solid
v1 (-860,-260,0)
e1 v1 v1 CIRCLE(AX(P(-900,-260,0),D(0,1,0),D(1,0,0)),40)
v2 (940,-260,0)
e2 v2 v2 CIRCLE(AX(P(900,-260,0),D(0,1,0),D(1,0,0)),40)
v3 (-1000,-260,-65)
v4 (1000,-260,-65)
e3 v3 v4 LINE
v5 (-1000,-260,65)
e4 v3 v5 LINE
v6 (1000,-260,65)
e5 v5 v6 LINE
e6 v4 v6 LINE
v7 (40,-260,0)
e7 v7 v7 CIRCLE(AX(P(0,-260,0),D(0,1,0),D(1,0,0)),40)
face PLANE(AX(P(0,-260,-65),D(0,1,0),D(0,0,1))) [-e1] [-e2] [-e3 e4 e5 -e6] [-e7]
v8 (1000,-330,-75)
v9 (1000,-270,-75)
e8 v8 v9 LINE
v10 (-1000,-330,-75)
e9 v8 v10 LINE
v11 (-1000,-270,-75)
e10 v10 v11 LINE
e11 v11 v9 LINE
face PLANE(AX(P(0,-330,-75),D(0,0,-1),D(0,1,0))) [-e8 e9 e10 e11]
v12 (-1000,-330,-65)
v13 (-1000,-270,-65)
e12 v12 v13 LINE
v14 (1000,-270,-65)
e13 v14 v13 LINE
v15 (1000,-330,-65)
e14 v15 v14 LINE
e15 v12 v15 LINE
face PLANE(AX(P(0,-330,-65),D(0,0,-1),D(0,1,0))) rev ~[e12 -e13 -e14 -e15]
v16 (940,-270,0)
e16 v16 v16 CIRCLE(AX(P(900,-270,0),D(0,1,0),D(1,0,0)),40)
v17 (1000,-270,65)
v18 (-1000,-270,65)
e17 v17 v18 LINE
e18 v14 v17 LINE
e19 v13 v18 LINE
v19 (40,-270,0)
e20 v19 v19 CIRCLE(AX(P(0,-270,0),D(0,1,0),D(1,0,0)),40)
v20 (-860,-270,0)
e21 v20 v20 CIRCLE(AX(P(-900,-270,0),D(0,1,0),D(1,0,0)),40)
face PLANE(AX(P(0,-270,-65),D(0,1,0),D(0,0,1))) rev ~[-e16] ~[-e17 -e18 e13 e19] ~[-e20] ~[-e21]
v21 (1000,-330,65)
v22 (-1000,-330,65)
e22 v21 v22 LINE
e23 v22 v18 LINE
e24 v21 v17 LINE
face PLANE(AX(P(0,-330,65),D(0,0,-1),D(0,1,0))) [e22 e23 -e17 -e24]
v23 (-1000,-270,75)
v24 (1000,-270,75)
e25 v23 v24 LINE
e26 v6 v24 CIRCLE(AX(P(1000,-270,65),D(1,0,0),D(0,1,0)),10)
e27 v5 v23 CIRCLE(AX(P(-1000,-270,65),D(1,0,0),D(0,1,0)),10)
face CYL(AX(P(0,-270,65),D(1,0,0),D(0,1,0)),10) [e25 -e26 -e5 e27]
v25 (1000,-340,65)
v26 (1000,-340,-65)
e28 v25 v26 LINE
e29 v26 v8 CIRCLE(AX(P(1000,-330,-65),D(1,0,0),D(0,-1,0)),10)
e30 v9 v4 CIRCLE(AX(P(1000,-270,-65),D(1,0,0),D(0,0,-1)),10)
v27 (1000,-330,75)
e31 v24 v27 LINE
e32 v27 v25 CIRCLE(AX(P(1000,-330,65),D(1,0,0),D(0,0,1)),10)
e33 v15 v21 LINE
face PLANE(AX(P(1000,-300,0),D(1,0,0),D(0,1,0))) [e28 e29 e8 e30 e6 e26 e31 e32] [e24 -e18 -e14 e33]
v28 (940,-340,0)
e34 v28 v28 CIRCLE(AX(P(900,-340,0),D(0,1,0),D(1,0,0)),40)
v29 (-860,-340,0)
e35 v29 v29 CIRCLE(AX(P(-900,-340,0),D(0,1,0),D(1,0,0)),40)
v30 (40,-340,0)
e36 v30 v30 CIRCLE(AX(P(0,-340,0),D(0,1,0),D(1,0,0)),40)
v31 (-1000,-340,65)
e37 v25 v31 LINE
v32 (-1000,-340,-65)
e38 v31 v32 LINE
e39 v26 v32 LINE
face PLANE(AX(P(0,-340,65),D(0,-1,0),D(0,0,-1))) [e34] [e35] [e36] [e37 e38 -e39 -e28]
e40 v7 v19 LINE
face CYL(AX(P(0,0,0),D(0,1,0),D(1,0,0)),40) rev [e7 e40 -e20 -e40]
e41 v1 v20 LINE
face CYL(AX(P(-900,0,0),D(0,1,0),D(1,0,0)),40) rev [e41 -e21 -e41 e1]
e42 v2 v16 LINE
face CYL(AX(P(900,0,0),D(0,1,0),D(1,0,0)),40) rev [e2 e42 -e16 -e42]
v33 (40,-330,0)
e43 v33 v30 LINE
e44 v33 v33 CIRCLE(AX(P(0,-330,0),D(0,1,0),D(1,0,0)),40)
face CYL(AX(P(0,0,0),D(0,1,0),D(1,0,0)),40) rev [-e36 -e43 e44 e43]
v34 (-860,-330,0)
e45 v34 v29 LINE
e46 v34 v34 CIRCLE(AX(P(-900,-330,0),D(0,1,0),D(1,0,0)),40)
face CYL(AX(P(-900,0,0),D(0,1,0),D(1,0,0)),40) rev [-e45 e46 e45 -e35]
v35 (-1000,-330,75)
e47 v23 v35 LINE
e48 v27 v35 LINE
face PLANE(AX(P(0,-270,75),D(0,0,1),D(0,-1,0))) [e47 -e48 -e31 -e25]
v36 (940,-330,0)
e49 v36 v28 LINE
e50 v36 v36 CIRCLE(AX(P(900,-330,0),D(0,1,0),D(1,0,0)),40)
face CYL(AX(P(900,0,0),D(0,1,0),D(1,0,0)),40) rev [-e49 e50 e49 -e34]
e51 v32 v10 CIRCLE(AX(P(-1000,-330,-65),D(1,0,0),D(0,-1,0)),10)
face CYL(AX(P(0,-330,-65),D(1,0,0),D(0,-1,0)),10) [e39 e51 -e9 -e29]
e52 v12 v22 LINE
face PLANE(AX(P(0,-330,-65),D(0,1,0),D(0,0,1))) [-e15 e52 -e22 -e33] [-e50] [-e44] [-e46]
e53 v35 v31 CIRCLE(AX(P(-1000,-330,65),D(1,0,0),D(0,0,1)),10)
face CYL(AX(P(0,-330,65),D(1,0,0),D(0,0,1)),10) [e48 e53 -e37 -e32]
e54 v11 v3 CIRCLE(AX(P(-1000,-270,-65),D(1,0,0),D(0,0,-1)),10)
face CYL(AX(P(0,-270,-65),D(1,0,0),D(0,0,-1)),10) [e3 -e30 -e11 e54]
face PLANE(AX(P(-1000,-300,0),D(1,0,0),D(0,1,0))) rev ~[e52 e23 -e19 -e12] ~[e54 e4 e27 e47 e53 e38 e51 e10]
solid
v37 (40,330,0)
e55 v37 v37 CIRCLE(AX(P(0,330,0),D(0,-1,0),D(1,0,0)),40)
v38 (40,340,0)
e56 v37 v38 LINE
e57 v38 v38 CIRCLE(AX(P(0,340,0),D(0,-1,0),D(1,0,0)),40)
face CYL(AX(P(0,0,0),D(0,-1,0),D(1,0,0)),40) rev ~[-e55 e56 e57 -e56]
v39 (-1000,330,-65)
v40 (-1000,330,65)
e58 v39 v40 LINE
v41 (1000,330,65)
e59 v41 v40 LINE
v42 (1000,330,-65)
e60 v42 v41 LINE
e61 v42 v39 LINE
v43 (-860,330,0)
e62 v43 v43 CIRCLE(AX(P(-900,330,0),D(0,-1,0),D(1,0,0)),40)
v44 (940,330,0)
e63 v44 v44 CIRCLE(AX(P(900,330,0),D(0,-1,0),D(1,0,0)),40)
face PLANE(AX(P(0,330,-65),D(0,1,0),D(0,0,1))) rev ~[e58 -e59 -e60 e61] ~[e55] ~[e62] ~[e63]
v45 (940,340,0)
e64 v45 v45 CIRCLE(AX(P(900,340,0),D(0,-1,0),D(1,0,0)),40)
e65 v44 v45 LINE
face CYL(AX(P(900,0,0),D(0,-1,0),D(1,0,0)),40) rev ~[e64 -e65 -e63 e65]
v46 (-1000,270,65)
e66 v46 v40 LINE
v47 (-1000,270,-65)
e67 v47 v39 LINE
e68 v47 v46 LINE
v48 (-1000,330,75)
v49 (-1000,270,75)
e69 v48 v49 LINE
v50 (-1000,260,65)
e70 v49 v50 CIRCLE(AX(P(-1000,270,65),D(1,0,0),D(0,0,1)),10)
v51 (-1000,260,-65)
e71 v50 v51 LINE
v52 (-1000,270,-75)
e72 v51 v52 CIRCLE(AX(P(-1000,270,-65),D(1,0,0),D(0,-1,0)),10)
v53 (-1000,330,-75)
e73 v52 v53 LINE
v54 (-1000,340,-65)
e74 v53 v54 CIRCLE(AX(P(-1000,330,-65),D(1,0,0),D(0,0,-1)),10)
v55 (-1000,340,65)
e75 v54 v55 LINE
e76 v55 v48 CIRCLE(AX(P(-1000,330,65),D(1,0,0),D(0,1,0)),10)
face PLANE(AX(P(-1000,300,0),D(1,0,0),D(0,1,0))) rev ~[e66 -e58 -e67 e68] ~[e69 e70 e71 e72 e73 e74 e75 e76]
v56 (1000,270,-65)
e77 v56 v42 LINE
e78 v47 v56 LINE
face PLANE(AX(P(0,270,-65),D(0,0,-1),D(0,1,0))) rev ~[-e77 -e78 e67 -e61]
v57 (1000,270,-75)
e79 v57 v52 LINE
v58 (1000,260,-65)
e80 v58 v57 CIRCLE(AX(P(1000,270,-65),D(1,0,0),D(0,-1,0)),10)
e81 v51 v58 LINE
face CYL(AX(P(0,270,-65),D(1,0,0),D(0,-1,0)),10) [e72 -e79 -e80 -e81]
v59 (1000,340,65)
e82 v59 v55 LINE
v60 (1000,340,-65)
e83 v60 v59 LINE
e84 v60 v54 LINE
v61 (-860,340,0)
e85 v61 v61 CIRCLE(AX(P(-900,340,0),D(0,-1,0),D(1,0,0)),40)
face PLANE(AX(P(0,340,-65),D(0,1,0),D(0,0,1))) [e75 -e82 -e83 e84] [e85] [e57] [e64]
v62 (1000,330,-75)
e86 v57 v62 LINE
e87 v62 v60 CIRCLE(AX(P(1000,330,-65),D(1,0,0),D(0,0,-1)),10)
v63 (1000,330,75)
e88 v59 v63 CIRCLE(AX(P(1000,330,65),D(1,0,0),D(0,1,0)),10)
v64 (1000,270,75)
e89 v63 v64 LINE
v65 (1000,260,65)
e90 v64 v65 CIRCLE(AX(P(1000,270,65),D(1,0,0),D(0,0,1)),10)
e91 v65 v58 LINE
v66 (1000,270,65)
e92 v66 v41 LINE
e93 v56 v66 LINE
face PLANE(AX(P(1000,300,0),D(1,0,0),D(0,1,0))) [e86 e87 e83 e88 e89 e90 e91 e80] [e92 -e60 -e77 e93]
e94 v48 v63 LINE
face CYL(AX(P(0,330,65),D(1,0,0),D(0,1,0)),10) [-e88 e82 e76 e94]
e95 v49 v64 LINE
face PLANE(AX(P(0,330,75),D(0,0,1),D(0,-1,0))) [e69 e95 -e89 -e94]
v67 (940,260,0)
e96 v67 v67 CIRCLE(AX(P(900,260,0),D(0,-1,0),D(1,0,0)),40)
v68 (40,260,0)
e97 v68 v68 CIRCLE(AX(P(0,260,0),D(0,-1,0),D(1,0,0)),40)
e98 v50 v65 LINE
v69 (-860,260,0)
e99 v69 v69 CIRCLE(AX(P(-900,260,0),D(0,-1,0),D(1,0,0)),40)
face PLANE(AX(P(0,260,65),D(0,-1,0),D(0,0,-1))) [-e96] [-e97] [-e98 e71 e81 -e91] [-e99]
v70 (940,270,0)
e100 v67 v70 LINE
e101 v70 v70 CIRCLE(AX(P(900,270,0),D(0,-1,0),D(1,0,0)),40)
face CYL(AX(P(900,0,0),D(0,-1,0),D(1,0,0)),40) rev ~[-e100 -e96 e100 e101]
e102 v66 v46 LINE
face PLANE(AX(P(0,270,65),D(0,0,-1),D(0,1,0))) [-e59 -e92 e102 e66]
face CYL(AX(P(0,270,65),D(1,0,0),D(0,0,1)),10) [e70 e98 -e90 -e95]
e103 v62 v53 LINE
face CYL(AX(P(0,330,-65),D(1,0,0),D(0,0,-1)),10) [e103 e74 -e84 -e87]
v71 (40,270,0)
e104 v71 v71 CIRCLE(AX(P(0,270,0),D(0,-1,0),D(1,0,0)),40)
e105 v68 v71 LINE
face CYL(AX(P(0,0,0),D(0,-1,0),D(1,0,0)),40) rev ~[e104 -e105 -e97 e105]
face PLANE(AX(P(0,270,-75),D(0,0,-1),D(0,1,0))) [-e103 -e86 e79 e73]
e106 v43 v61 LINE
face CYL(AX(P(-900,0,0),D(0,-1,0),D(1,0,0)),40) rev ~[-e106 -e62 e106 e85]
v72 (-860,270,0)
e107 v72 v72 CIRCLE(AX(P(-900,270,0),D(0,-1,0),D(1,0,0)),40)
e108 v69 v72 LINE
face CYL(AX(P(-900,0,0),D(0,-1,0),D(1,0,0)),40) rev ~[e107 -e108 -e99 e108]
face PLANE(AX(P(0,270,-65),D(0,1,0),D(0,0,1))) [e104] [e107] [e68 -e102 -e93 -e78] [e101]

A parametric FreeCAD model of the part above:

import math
import FreeCAD as App
import Part
import Sketcher

V = App.Vector


def add_polygon(sketch, points):
    """Adds a closed chain of lines whose ends are joined by coincident constraints."""
    first, n = sketch.GeometryCount, len(points)
    for a, b in zip(points, points[1:] + points[:1]):
        sketch.addGeometry(Part.LineSegment(App.Vector(*a, 0), App.Vector(*b, 0)), False)
    for i in range(n):
        sketch.addConstraint(Sketcher.Constraint("Coincident", first + i, 2, first + (i + 1) % n, 1))

doc = App.newDocument("Part")
body = doc.addObject("PartDesign::Body", "Body")

sketch1 = body.newObject("Sketcher::SketchObject", "Sketch")
sketch1.AttachmentSupport = (doc.getObject("YZ_Plane"), [""])
sketch1.MapMode = "FlatFace"
sketch1.addGeometry(Part.LineSegment(V(-330, -75, 0), V(-270, -75, 0)), False)
sketch1.addGeometry(Part.ArcOfCircle(Part.Circle(V(-270, -65, 0), V(0, 0, 1), 10), math.radians(-90), math.radians(0)), False)
sketch1.addGeometry(Part.LineSegment(V(-260, -65, 0), V(-260, 65, 0)), False)
sketch1.addGeometry(Part.ArcOfCircle(Part.Circle(V(-270, 65, 0), V(0, 0, 1), 10), math.radians(0), math.radians(90)), False)
sketch1.addGeometry(Part.LineSegment(V(-270, 75, 0), V(-330, 75, 0)), False)
sketch1.addGeometry(Part.ArcOfCircle(Part.Circle(V(-330, 65, 0), V(0, 0, 1), 10), math.radians(90), math.radians(180)), False)
sketch1.addGeometry(Part.LineSegment(V(-340, 65, 0), V(-340, -65, 0)), False)
sketch1.addGeometry(Part.ArcOfCircle(Part.Circle(V(-330, -65, 0), V(0, 0, 1), 10), math.radians(180), math.radians(270)), False)
add_polygon(sketch1, [(-270, -65), (-330, -65), (-330, 65), (-270, 65)])
sketch1.addConstraint(Sketcher.Constraint("Tangent", 0, 2, 1, 1))
sketch1.addConstraint(Sketcher.Constraint("Tangent", 1, 2, 2, 1))
sketch1.addConstraint(Sketcher.Constraint("Tangent", 2, 2, 3, 1))
sketch1.addConstraint(Sketcher.Constraint("Tangent", 3, 2, 4, 1))
sketch1.addConstraint(Sketcher.Constraint("Tangent", 4, 2, 5, 1))
sketch1.addConstraint(Sketcher.Constraint("Tangent", 5, 2, 6, 1))
sketch1.addConstraint(Sketcher.Constraint("Tangent", 6, 2, 7, 1))
sketch1.addConstraint(Sketcher.Constraint("Tangent", 7, 2, 0, 1))
sketch1.addConstraint(Sketcher.Constraint("Horizontal", 0))
sketch1.addConstraint(Sketcher.Constraint("Vertical", 2))
sketch1.addConstraint(Sketcher.Constraint("Horizontal", 4))
sketch1.addConstraint(Sketcher.Constraint("Vertical", 6))
sketch1.addConstraint(Sketcher.Constraint("Horizontal", 8))
sketch1.addConstraint(Sketcher.Constraint("Vertical", 9))
sketch1.addConstraint(Sketcher.Constraint("Horizontal", 10))
sketch1.addConstraint(Sketcher.Constraint("Vertical", 11))
sketch1.addConstraint(Sketcher.Constraint("Coincident", 8, 2, 7, 3))
sketch1.addConstraint(Sketcher.Constraint("Coincident", 9, 2, 5, 3))
sketch1.addConstraint(Sketcher.Constraint("Coincident", 10, 2, 3, 3))
sketch1.addConstraint(Sketcher.Constraint("Equal", 1, 3))
sketch1.addConstraint(Sketcher.Constraint("Radius", 1, 10.0))
sketch1.addConstraint(Sketcher.Constraint("DistanceX", 0, 1, 0, 2, 60.0))
sketch1.addConstraint(Sketcher.Constraint("DistanceY", 2, 1, 2, 2, 130.0))
sketch1.addConstraint(Sketcher.Constraint("DistanceX", 1, 3, -1, 1, 270.0))
sketch1.addConstraint(Sketcher.Constraint("DistanceY", 1, 3, -1, 1, 65.0))
pad1 = body.newObject("PartDesign::Pad", "Pad")
pad1.Profile = sketch1
pad1.Length = 2000
pad1.Midplane = True
body2 = doc.addObject("PartDesign::Body", "Body001")

sketch2 = body2.newObject("Sketcher::SketchObject", "Sketch001")
sketch2.AttachmentSupport = (doc.getObject("YZ_Plane001"), [""])
sketch2.MapMode = "FlatFace"
sketch2.addGeometry(Part.ArcOfCircle(Part.Circle(V(330, 65, 0), V(0, 0, 1), 10), math.radians(0), math.radians(90)), False)
sketch2.addGeometry(Part.LineSegment(V(330, 75, 0), V(270, 75, 0)), False)
sketch2.addGeometry(Part.ArcOfCircle(Part.Circle(V(270, 65, 0), V(0, 0, 1), 10), math.radians(90), math.radians(180)), False)
sketch2.addGeometry(Part.LineSegment(V(260, 65, 0), V(260, -65, 0)), False)
sketch2.addGeometry(Part.ArcOfCircle(Part.Circle(V(270, -65, 0), V(0, 0, 1), 10), math.radians(180), math.radians(270)), False)
sketch2.addGeometry(Part.LineSegment(V(270, -75, 0), V(330, -75, 0)), False)
sketch2.addGeometry(Part.ArcOfCircle(Part.Circle(V(330, -65, 0), V(0, 0, 1), 10), math.radians(-90), math.radians(0)), False)
sketch2.addGeometry(Part.LineSegment(V(340, -65, 0), V(340, 65, 0)), False)
add_polygon(sketch2, [(330, -65), (270, -65), (270, 65), (330, 65)])
sketch2.addConstraint(Sketcher.Constraint("Tangent", 0, 2, 1, 1))
sketch2.addConstraint(Sketcher.Constraint("Tangent", 1, 2, 2, 1))
sketch2.addConstraint(Sketcher.Constraint("Tangent", 2, 2, 3, 1))
sketch2.addConstraint(Sketcher.Constraint("Tangent", 3, 2, 4, 1))
sketch2.addConstraint(Sketcher.Constraint("Tangent", 4, 2, 5, 1))
sketch2.addConstraint(Sketcher.Constraint("Tangent", 5, 2, 6, 1))
sketch2.addConstraint(Sketcher.Constraint("Tangent", 6, 2, 7, 1))
sketch2.addConstraint(Sketcher.Constraint("Tangent", 7, 2, 0, 1))
sketch2.addConstraint(Sketcher.Constraint("Horizontal", 1))
sketch2.addConstraint(Sketcher.Constraint("Vertical", 3))
sketch2.addConstraint(Sketcher.Constraint("Horizontal", 5))
sketch2.addConstraint(Sketcher.Constraint("Vertical", 7))
sketch2.addConstraint(Sketcher.Constraint("Horizontal", 8))
sketch2.addConstraint(Sketcher.Constraint("Vertical", 9))
sketch2.addConstraint(Sketcher.Constraint("Horizontal", 10))
sketch2.addConstraint(Sketcher.Constraint("Vertical", 11))
sketch2.addConstraint(Sketcher.Constraint("Coincident", 8, 2, 4, 3))
sketch2.addConstraint(Sketcher.Constraint("Coincident", 9, 2, 2, 3))
sketch2.addConstraint(Sketcher.Constraint("Coincident", 10, 2, 0, 3))
sketch2.addConstraint(Sketcher.Constraint("Equal", 4, 6))
sketch2.addConstraint(Sketcher.Constraint("Radius", 0, 10.0))
sketch2.addConstraint(Sketcher.Constraint("DistanceX", 1, 2, 1, 1, 60.0))
sketch2.addConstraint(Sketcher.Constraint("DistanceY", 3, 2, 3, 1, 130.0))
sketch2.addConstraint(Sketcher.Constraint("DistanceX", -1, 1, 0, 3, 330.0))
sketch2.addConstraint(Sketcher.Constraint("DistanceY", -1, 1, 0, 3, 65.0))
pad2 = body2.newObject("PartDesign::Pad", "Pad001")
pad2.Profile = sketch2
pad2.Length = 2000
pad2.Midplane = True
body3 = doc.addObject("PartDesign::Body", "Body002")
body3.AllowCompound = True

sketch3 = body3.newObject("Sketcher::SketchObject", "Sketch002")
sketch3.AttachmentSupport = (doc.getObject("XZ_Plane002"), [""])
sketch3.MapMode = "FlatFace"
sketch3.addGeometry(Part.Circle(V(900, 0, 0), V(0, 0, 1), 40), False)
sketch3.addGeometry(Part.Circle(V(0, 0, 0), V(0, 0, 1), 40), False)
sketch3.addGeometry(Part.Circle(V(-900, 0, 0), V(0, 0, 1), 40), False)
sketch3.addConstraint(Sketcher.Constraint("Coincident", 1, 3, -1, 1))
sketch3.addConstraint(Sketcher.Constraint("Equal", 0, 1))
sketch3.addConstraint(Sketcher.Constraint("Equal", 1, 2))
sketch3.addConstraint(Sketcher.Constraint("Symmetric", 0, 3, 2, 3, -1, 1))
sketch3.addConstraint(Sketcher.Constraint("PointOnObject", 0, 3, -1))
sketch3.addConstraint(Sketcher.Constraint("Diameter", 0, 80.0))
sketch3.addConstraint(Sketcher.Constraint("DistanceX", -1, 1, 0, 3, 900.0))
pad3 = body3.newObject("PartDesign::Pad", "Pad002")
pad3.Profile = sketch3
pad3.Type = "TwoLengths"
pad3.Length = 340.001
pad3.Length2 = 340.001
pad3.Reversed = True
doc.recompute()

body4 = doc.addObject("PartDesign::Body", "Body003")
body4.BaseFeature = body3
boolean = body.newObject("PartDesign::Boolean", "Boolean")
boolean.Type = "Cut"
boolean.addObjects([body4])
doc.recompute()

boolean2 = body2.newObject("PartDesign::Boolean", "Boolean001")
boolean2.Type = "Cut"
boolean2.addObjects([body3])

doc.recompute()
